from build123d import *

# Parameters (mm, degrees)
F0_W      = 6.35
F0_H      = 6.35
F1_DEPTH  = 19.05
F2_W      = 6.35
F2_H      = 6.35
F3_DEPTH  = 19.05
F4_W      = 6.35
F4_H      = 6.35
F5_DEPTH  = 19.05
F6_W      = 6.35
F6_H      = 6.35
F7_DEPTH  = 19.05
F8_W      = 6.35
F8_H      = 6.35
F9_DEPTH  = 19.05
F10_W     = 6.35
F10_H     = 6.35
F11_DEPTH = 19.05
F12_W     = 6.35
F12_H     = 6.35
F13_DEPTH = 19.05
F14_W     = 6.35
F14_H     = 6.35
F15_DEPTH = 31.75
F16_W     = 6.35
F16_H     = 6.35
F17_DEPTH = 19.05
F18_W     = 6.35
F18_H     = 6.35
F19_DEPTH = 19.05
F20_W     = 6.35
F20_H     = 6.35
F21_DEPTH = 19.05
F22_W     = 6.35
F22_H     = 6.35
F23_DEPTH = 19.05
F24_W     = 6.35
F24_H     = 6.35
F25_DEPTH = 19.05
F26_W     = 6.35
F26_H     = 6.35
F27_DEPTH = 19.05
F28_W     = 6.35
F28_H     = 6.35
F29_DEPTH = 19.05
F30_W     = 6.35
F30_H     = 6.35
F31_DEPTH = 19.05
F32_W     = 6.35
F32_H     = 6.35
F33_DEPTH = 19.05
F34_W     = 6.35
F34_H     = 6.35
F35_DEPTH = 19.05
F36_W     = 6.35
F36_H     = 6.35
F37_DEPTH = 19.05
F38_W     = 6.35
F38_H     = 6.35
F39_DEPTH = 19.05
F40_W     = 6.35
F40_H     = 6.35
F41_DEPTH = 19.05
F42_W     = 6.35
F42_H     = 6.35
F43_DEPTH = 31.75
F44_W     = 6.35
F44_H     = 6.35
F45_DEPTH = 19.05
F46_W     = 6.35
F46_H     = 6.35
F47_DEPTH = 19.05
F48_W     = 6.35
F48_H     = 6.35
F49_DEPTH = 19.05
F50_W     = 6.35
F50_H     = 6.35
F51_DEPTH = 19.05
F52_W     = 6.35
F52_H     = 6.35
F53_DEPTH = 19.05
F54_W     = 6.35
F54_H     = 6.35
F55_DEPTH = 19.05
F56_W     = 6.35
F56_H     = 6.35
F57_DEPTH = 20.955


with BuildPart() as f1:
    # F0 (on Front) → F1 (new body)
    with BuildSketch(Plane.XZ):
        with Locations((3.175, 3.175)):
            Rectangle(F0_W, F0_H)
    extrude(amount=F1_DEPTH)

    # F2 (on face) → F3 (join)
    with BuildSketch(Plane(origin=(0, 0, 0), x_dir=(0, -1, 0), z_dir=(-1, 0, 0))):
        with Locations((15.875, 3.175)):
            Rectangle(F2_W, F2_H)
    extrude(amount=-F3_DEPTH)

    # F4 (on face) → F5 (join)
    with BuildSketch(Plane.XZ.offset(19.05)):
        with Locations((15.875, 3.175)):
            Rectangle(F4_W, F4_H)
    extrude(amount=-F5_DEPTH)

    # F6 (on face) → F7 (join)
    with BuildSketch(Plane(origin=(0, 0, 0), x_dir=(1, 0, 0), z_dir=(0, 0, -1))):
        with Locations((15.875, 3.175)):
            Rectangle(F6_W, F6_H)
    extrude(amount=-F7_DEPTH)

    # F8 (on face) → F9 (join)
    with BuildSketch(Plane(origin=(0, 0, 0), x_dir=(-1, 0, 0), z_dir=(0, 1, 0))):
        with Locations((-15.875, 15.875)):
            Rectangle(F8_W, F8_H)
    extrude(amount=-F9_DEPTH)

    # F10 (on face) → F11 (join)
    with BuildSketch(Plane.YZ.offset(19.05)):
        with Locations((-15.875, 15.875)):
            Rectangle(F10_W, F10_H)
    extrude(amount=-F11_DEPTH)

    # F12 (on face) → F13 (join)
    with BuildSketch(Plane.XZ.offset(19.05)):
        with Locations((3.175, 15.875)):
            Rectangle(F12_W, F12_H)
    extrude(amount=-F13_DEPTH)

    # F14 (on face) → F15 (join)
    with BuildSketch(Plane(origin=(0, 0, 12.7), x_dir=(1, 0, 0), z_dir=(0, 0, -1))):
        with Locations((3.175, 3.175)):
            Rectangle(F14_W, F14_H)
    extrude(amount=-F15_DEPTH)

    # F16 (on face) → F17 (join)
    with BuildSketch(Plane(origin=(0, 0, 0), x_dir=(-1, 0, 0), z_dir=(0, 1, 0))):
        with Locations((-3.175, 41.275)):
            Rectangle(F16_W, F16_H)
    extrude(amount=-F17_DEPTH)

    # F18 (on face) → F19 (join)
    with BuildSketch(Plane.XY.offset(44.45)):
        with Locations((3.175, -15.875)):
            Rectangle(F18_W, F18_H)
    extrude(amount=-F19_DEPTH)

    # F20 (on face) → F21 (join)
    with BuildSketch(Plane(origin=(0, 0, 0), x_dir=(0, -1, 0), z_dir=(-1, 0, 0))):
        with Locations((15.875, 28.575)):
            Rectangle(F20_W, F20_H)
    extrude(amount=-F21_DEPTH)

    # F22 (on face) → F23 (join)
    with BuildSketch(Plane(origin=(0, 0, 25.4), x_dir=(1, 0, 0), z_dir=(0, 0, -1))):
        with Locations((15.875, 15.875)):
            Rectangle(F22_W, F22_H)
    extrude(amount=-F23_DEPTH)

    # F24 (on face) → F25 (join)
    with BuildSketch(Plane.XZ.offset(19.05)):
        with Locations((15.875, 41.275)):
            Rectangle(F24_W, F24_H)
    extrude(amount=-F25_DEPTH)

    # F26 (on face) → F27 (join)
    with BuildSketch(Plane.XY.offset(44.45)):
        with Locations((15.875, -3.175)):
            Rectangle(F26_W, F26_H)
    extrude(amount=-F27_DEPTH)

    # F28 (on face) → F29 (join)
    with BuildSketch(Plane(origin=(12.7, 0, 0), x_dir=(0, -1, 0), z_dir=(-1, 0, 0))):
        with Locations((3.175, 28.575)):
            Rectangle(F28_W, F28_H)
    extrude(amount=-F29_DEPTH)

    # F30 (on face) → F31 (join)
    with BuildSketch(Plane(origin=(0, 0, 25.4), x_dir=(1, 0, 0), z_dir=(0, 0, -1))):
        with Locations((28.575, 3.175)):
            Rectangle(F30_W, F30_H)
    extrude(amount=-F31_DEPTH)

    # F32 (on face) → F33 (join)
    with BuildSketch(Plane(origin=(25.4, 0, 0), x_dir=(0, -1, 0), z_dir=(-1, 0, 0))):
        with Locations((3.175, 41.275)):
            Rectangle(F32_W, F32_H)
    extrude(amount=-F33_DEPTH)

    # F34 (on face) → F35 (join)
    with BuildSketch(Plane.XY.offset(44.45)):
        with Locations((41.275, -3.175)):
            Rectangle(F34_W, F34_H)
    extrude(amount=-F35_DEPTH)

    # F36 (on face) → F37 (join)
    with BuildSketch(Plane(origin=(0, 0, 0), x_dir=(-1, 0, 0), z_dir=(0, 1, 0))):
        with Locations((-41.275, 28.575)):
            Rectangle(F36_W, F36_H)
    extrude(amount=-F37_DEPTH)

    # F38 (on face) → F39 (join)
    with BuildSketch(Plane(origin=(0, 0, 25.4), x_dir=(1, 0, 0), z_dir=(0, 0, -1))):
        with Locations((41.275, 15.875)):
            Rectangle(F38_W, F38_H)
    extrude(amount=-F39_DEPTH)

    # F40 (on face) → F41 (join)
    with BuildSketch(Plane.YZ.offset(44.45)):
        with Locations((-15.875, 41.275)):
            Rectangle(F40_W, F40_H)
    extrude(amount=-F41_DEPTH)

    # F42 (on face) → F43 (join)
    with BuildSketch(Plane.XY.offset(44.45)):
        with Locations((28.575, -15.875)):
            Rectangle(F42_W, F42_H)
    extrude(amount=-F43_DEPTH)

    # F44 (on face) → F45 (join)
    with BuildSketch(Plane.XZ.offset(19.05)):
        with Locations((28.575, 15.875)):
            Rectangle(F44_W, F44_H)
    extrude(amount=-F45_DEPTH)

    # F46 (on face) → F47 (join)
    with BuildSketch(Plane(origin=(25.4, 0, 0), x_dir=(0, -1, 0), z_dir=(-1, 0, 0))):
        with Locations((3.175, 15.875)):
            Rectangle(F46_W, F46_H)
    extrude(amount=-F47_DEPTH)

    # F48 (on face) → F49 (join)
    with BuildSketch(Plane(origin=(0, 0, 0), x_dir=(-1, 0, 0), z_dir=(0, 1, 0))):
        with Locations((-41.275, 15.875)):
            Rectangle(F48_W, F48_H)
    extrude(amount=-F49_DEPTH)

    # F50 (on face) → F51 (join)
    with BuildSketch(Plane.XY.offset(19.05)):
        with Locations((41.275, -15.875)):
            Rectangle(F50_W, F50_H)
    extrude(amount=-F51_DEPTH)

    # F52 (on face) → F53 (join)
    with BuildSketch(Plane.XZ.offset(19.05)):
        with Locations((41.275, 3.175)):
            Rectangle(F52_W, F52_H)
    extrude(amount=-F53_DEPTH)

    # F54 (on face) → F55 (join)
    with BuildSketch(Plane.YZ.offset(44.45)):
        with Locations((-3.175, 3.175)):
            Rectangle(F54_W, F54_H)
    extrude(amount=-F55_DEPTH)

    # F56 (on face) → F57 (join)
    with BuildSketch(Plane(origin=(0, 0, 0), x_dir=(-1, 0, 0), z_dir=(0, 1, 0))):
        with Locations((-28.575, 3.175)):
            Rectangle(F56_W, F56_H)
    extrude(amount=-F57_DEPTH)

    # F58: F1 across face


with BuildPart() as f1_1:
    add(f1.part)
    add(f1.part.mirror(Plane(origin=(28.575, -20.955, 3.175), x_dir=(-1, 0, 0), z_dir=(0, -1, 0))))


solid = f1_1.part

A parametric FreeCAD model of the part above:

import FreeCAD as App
import Part
import Sketcher

V = App.Vector
Q = App.Units.Quantity


def add_polygon(sketch, points):
    """Adds a closed chain of lines whose ends are joined by coincident constraints."""
    first, n = sketch.GeometryCount, len(points)
    for a, b in zip(points, points[1:] + points[:1]):
        sketch.addGeometry(Part.LineSegment(App.Vector(*a, 0), App.Vector(*b, 0)), False)
    for i in range(n):
        sketch.addConstraint(Sketcher.Constraint("Coincident", first + i, 2, first + (i + 1) % n, 1))

doc = App.newDocument("Part")
body = doc.addObject("PartDesign::Body", "Body")

sketch1 = body.newObject("Sketcher::SketchObject", "Sketch")
sketch1.AttachmentSupport = (doc.getObject("XZ_Plane"), [""])
sketch1.MapMode = "FlatFace"
add_polygon(sketch1, [(0, 6), (0, 0), (6, 0), (6, 6)])
sketch1.addConstraint(Sketcher.Constraint("Vertical", 0))
sketch1.addConstraint(Sketcher.Constraint("Horizontal", 1))
sketch1.addConstraint(Sketcher.Constraint("Vertical", 2))
sketch1.addConstraint(Sketcher.Constraint("Horizontal", 3))
sketch1.addConstraint(Sketcher.Constraint("Coincident", 0, 2, -1, 1))
sketch1.addConstraint(Sketcher.Constraint("Equal", 3, 0))
sketch1.addConstraint(Sketcher.Constraint("DistanceX", 1, 1, 1, 2, Q("0.25 in")))
pad1 = body.newObject("PartDesign::Pad", "Pad")
pad1.Profile = sketch1
pad1.Length = Q("0.75 in")

sketch2 = body.newObject("Sketcher::SketchObject", "Sketch001")
sketch2.AttachmentSupport = (doc.getObject("YZ_Plane"), [""])
sketch2.MapMode = "FlatFace"
add_polygon(sketch2, [(-13, 6), (-13, 0), (-19, 0), (-19, 6)])
sketch2.addConstraint(Sketcher.Constraint("Vertical", 0))
sketch2.addConstraint(Sketcher.Constraint("Horizontal", 1))
sketch2.addConstraint(Sketcher.Constraint("Vertical", 2))
sketch2.addConstraint(Sketcher.Constraint("Horizontal", 3))
sketch2.addConstraint(Sketcher.Constraint("PointOnObject", 0, 2, -1))
sketch2.addConstraint(Sketcher.Constraint("Equal", 3, 0))
sketch2.addConstraint(Sketcher.Constraint("DistanceX", 1, 2, 1, 1, Q("0.25 in")))
sketch2.addConstraint(Sketcher.Constraint("DistanceX", 0, 2, -1, 1, Q("0.5 in")))
pad2 = body.newObject("PartDesign::Pad", "Pad001")
pad2.Profile = sketch2
pad2.Length = Q("0.75 in")

sketch3 = body.newObject("Sketcher::SketchObject", "Sketch002")
sketch3.AttachmentSupport = (doc.getObject("XZ_Plane"), [""])
sketch3.MapMode = "FlatFace"
sketch3.AttachmentOffset = App.Placement(V(0, 0, 0.75 * 25.4), App.Rotation())
add_polygon(sketch3, [(13, 6), (13, 0), (19, 0), (19, 6)])
sketch3.addConstraint(Sketcher.Constraint("Vertical", 0))
sketch3.addConstraint(Sketcher.Constraint("Horizontal", 1))
sketch3.addConstraint(Sketcher.Constraint("Vertical", 2))
sketch3.addConstraint(Sketcher.Constraint("Horizontal", 3))
sketch3.addConstraint(Sketcher.Constraint("PointOnObject", 0, 2, -1))
sketch3.addConstraint(Sketcher.Constraint("Equal", 3, 0))
sketch3.addConstraint(Sketcher.Constraint("DistanceX", 1, 1, 1, 2, Q("0.25 in")))
sketch3.addConstraint(Sketcher.Constraint("DistanceX", -1, 1, 0, 2, Q("0.5 in")))
pad3 = body.newObject("PartDesign::Pad", "Pad002")
pad3.Profile = sketch3
pad3.Length = Q("0.75 in")
pad3.Reversed = True

sketch4 = body.newObject("Sketcher::SketchObject", "Sketch003")
sketch4.AttachmentSupport = (doc.getObject("XY_Plane"), [""])
sketch4.MapMode = "FlatFace"
add_polygon(sketch4, [(13, -6), (13, 0), (19, 0), (19, -6)])
sketch4.addConstraint(Sketcher.Constraint("Vertical", 0))
sketch4.addConstraint(Sketcher.Constraint("Horizontal", 1))
sketch4.addConstraint(Sketcher.Constraint("Vertical", 2))
sketch4.addConstraint(Sketcher.Constraint("Horizontal", 3))
sketch4.addConstraint(Sketcher.Constraint("PointOnObject", 0, 2, -1))
sketch4.addConstraint(Sketcher.Constraint("Equal", 3, 0))
sketch4.addConstraint(Sketcher.Constraint("DistanceX", 1, 1, 1, 2, Q("0.25 in")))
sketch4.addConstraint(Sketcher.Constraint("DistanceX", -1, 1, 0, 2, Q("0.5 in")))
pad4 = body.newObject("PartDesign::Pad", "Pad003")
pad4.Profile = sketch4
pad4.Length = Q("0.75 in")

sketch5 = body.newObject("Sketcher::SketchObject", "Sketch004")
sketch5.AttachmentSupport = (doc.getObject("XZ_Plane"), [""])
sketch5.MapMode = "FlatFace"
add_polygon(sketch5, [(19, 19), (19, 13), (13, 13), (13, 19)])
sketch5.addConstraint(Sketcher.Constraint("Vertical", 0))
sketch5.addConstraint(Sketcher.Constraint("Horizontal", 1))
sketch5.addConstraint(Sketcher.Constraint("Vertical", 2))
sketch5.addConstraint(Sketcher.Constraint("Horizontal", 3))
sketch5.addConstraint(Sketcher.Constraint("Equal", 3, 0))
sketch5.addConstraint(Sketcher.Constraint("DistanceX", 1, 2, 1, 1, Q("0.25 in")))
sketch5.addConstraint(Sketcher.Constraint("DistanceY", -1, 1, 0, 2, Q("0.5 in")))
sketch5.addConstraint(Sketcher.Constraint("DistanceX", -1, 1, 1, 2, Q("0.5 in")))
pad5 = body.newObject("PartDesign::Pad", "Pad004")
pad5.Profile = sketch5
pad5.Length = Q("0.75 in")

sketch6 = body.newObject("Sketcher::SketchObject", "Sketch005")
sketch6.AttachmentSupport = (doc.getObject("YZ_Plane"), [""])
sketch6.MapMode = "FlatFace"
sketch6.AttachmentOffset = App.Placement(V(0, 0, 0.75 * 25.4), App.Rotation())
add_polygon(sketch6, [(-19, 19), (-19, 13), (-13, 13), (-13, 19)])
sketch6.addConstraint(Sketcher.Constraint("Vertical", 0))
sketch6.addConstraint(Sketcher.Constraint("Horizontal", 1))
sketch6.addConstraint(Sketcher.Constraint("Vertical", 2))
sketch6.addConstraint(Sketcher.Constraint("Horizontal", 3))
sketch6.addConstraint(Sketcher.Constraint("Equal", 3, 0))
sketch6.addConstraint(Sketcher.Constraint("DistanceX", 1, 1, 1, 2, Q("0.25 in")))
sketch6.addConstraint(Sketcher.Constraint("DistanceY", -1, 1, 0, 2, Q("0.5 in")))
sketch6.addConstraint(Sketcher.Constraint("DistanceX", 1, 2, -1, 1, Q("0.5 in")))
pad6 = body.newObject("PartDesign::Pad", "Pad005")
pad6.Profile = sketch6
pad6.Length = Q("0.75 in")
pad6.Reversed = True

sketch7 = body.newObject("Sketcher::SketchObject", "Sketch006")
sketch7.AttachmentSupport = (doc.getObject("XZ_Plane"), [""])
sketch7.MapMode = "FlatFace"
sketch7.AttachmentOffset = App.Placement(V(0, 0, 0.75 * 25.4), App.Rotation())
add_polygon(sketch7, [(0, 19), (0, 13), (6, 13), (6, 19)])
sketch7.addConstraint(Sketcher.Constraint("Vertical", 0))
sketch7.addConstraint(Sketcher.Constraint("Horizontal", 1))
sketch7.addConstraint(Sketcher.Constraint("Vertical", 2))
sketch7.addConstraint(Sketcher.Constraint("Horizontal", 3))
sketch7.addConstraint(Sketcher.Constraint("PointOnObject", 0, 2, -2))
sketch7.addConstraint(Sketcher.Constraint("Equal", 3, 0))
sketch7.addConstraint(Sketcher.Constraint("DistanceX", 1, 1, 1, 2, Q("0.25 in")))
sketch7.addConstraint(Sketcher.Constraint("DistanceY", -1, 1, 0, 2, Q("0.5 in")))
pad7 = body.newObject("PartDesign::Pad", "Pad006")
pad7.Profile = sketch7
pad7.Length = Q("0.75 in")
pad7.Reversed = True

sketch8 = body.newObject("Sketcher::SketchObject", "Sketch007")
sketch8.AttachmentSupport = (doc.getObject("XY_Plane"), [""])
sketch8.MapMode = "FlatFace"
sketch8.AttachmentOffset = App.Placement(V(0, 0, 0.5 * 25.4), App.Rotation())
add_polygon(sketch8, [(0, -6), (0, 0), (6, 0), (6, -6)])
sketch8.addConstraint(Sketcher.Constraint("Vertical", 0))
sketch8.addConstraint(Sketcher.Constraint("Horizontal", 1))
sketch8.addConstraint(Sketcher.Constraint("Vertical", 2))
sketch8.addConstraint(Sketcher.Constraint("Horizontal", 3))
sketch8.addConstraint(Sketcher.Constraint("Coincident", 0, 2, -1, 1))
sketch8.addConstraint(Sketcher.Constraint("Equal", 3, 0))
sketch8.addConstraint(Sketcher.Constraint("DistanceX", 1, 1, 1, 2, Q("0.25 in")))
pad8 = body.newObject("PartDesign::Pad", "Pad007")
pad8.Profile = sketch8
pad8.Length = Q("1.25 in")

sketch9 = body.newObject("Sketcher::SketchObject", "Sketch008")
sketch9.AttachmentSupport = (doc.getObject("XZ_Plane"), [""])
sketch9.MapMode = "FlatFace"
add_polygon(sketch9, [(6, 44), (6, 38), (0, 38), (0, 44)])
sketch9.addConstraint(Sketcher.Constraint("Vertical", 0))
sketch9.addConstraint(Sketcher.Constraint("Horizontal", 1))
sketch9.addConstraint(Sketcher.Constraint("Vertical", 2))
sketch9.addConstraint(Sketcher.Constraint("Horizontal", 3))
sketch9.addConstraint(Sketcher.Constraint("PointOnObject", 1, 2, -2))
sketch9.addConstraint(Sketcher.Constraint("Equal", 3, 0))
sketch9.addConstraint(Sketcher.Constraint("DistanceX", 1, 2, 1, 1, Q("0.25 in")))
sketch9.addConstraint(Sketcher.Constraint("DistanceY", -1, 1, 0, 2, Q("1.5 in")))
pad9 = body.newObject("PartDesign::Pad", "Pad008")
pad9.Profile = sketch9
pad9.Length = Q("0.75 in")

sketch10 = body.newObject("Sketcher::SketchObject", "Sketch009")
sketch10.AttachmentSupport = (doc.getObject("XY_Plane"), [""])
sketch10.MapMode = "FlatFace"
sketch10.AttachmentOffset = App.Placement(V(0, 0, 1.75 * 25.4), App.Rotation())
add_polygon(sketch10, [(0, -13), (0, -19), (6, -19), (6, -13)])
sketch10.addConstraint(Sketcher.Constraint("Vertical", 0))
sketch10.addConstraint(Sketcher.Constraint("Horizontal", 1))
sketch10.addConstraint(Sketcher.Constraint("Vertical", 2))
sketch10.addConstraint(Sketcher.Constraint("Horizontal", 3))
sketch10.addConstraint(Sketcher.Constraint("PointOnObject", 0, 2, -2))
sketch10.addConstraint(Sketcher.Constraint("Equal", 3, 0))
sketch10.addConstraint(Sketcher.Constraint("DistanceX", 1, 1, 1, 2, Q("0.25 in")))
sketch10.addConstraint(Sketcher.Constraint("DistanceY", 2, 2, -1, 1, Q("0.5 in")))
pad10 = body.newObject("PartDesign::Pad", "Pad009")
pad10.Profile = sketch10
pad10.Length = Q("0.75 in")
pad10.Reversed = True

sketch11 = body.newObject("Sketcher::SketchObject", "Sketch010")
sketch11.AttachmentSupport = (doc.getObject("YZ_Plane"), [""])
sketch11.MapMode = "FlatFace"
add_polygon(sketch11, [(-13, 32), (-13, 25), (-19, 25), (-19, 32)])
sketch11.addConstraint(Sketcher.Constraint("Vertical", 0))
sketch11.addConstraint(Sketcher.Constraint("Horizontal", 1))
sketch11.addConstraint(Sketcher.Constraint("Vertical", 2))
sketch11.addConstraint(Sketcher.Constraint("Horizontal", 3))
sketch11.addConstraint(Sketcher.Constraint("Equal", 3, 0))
sketch11.addConstraint(Sketcher.Constraint("DistanceY", -1, 1, 0, 2, Q("1 in")))
sketch11.addConstraint(Sketcher.Constraint("DistanceX", 1, 2, 1, 1, Q("0.25 in")))
sketch11.addConstraint(Sketcher.Constraint("DistanceX", 0, 2, -1, 1, Q("0.5 in")))
pad11 = body.newObject("PartDesign::Pad", "Pad010")
pad11.Profile = sketch11
pad11.Length = Q("0.75 in")

sketch12 = body.newObject("Sketcher::SketchObject", "Sketch011")
sketch12.AttachmentSupport = (doc.getObject("XY_Plane"), [""])
sketch12.MapMode = "FlatFace"
sketch12.AttachmentOffset = App.Placement(V(0, 0, 1 * 25.4), App.Rotation())
add_polygon(sketch12, [(13, -19), (13, -13), (19, -13), (19, -19)])
sketch12.addConstraint(Sketcher.Constraint("Vertical", 0))
sketch12.addConstraint(Sketcher.Constraint("Horizontal", 1))
sketch12.addConstraint(Sketcher.Constraint("Vertical", 2))
sketch12.addConstraint(Sketcher.Constraint("Horizontal", 3))
sketch12.addConstraint(Sketcher.Constraint("Equal", 3, 0))
sketch12.addConstraint(Sketcher.Constraint("DistanceX", 1, 1, 1, 2, Q("0.25 in")))
sketch12.addConstraint(Sketcher.Constraint("DistanceX", -1, 1, 0, 2, Q("0.5 in")))
sketch12.addConstraint(Sketcher.Constraint("DistanceY", 0, 2, -1, 1, Q("0.5 in")))
pad12 = body.newObject("PartDesign::Pad", "Pad011")
pad12.Profile = sketch12
pad12.Length = Q("0.75 in")

sketch13 = body.newObject("Sketcher::SketchObject", "Sketch012")
sketch13.AttachmentSupport = (doc.getObject("XZ_Plane"), [""])
sketch13.MapMode = "FlatFace"
sketch13.AttachmentOffset = App.Placement(V(0, 0, 0.75 * 25.4), App.Rotation())
add_polygon(sketch13, [(13, 44), (13, 38), (19, 38), (19, 44)])
sketch13.addConstraint(Sketcher.Constraint("Vertical", 0))
sketch13.addConstraint(Sketcher.Constraint("Horizontal", 1))
sketch13.addConstraint(Sketcher.Constraint("Vertical", 2))
sketch13.addConstraint(Sketcher.Constraint("Horizontal", 3))
sketch13.addConstraint(Sketcher.Constraint("Equal", 3, 0))
sketch13.addConstraint(Sketcher.Constraint("DistanceX", 1, 1, 1, 2, Q("0.25 in")))
sketch13.addConstraint(Sketcher.Constraint("DistanceX", -1, 1, 0, 2, Q("0.5 in")))
sketch13.addConstraint(Sketcher.Constraint("DistanceY", -1, 1, 0, 2, Q("1.5 in")))
pad13 = body.newObject("PartDesign::Pad", "Pad012")
pad13.Profile = sketch13
pad13.Length = Q("0.75 in")
pad13.Reversed = True

sketch14 = body.newObject("Sketcher::SketchObject", "Sketch013")
sketch14.AttachmentSupport = (doc.getObject("XY_Plane"), [""])
sketch14.MapMode = "FlatFace"
sketch14.AttachmentOffset = App.Placement(V(0, 0, 1.75 * 25.4), App.Rotation())
add_polygon(sketch14, [(13, 0), (13, -6), (19, -6), (19, 0)])
sketch14.addConstraint(Sketcher.Constraint("Vertical", 0))
sketch14.addConstraint(Sketcher.Constraint("Horizontal", 1))
sketch14.addConstraint(Sketcher.Constraint("Vertical", 2))
sketch14.addConstraint(Sketcher.Constraint("Horizontal", 3))
sketch14.addConstraint(Sketcher.Constraint("PointOnObject", 2, 2, -1))
sketch14.addConstraint(Sketcher.Constraint("Equal", 3, 0))
sketch14.addConstraint(Sketcher.Constraint("DistanceX", 1, 1, 1, 2, Q("0.25 in")))
sketch14.addConstraint(Sketcher.Constraint("DistanceX", -1, 1, 0, 2, Q("0.5 in")))
pad14 = body.newObject("PartDesign::Pad", "Pad013")
pad14.Profile = sketch14
pad14.Length = Q("0.75 in")
pad14.Reversed = True

sketch15 = body.newObject("Sketcher::SketchObject", "Sketch014")
sketch15.AttachmentSupport = (doc.getObject("YZ_Plane"), [""])
sketch15.MapMode = "FlatFace"
sketch15.AttachmentOffset = App.Placement(V(0, 0, 0.5 * 25.4), App.Rotation())
add_polygon(sketch15, [(0, 32), (0, 25), (-6, 25), (-6, 32)])
sketch15.addConstraint(Sketcher.Constraint("Vertical", 0))
sketch15.addConstraint(Sketcher.Constraint("Horizontal", 1))
sketch15.addConstraint(Sketcher.Constraint("Vertical", 2))
sketch15.addConstraint(Sketcher.Constraint("Horizontal", 3))
sketch15.addConstraint(Sketcher.Constraint("PointOnObject", 0, 2, -2))
sketch15.addConstraint(Sketcher.Constraint("Equal", 3, 0))
sketch15.addConstraint(Sketcher.Constraint("DistanceY", -1, 1, 0, 2, Q("1 in")))
sketch15.addConstraint(Sketcher.Constraint("DistanceX", 1, 2, 1, 1, Q("0.25 in")))
pad15 = body.newObject("PartDesign::Pad", "Pad014")
pad15.Profile = sketch15
pad15.Length = Q("0.75 in")

sketch16 = body.newObject("Sketcher::SketchObject", "Sketch015")
sketch16.AttachmentSupport = (doc.getObject("XY_Plane"), [""])
sketch16.MapMode = "FlatFace"
sketch16.AttachmentOffset = App.Placement(V(0, 0, 1 * 25.4), App.Rotation())
add_polygon(sketch16, [(25, -6), (25, 0), (32, 0), (32, -6)])
sketch16.addConstraint(Sketcher.Constraint("Vertical", 0))
sketch16.addConstraint(Sketcher.Constraint("Horizontal", 1))
sketch16.addConstraint(Sketcher.Constraint("Vertical", 2))
sketch16.addConstraint(Sketcher.Constraint("Horizontal", 3))
sketch16.addConstraint(Sketcher.Constraint("PointOnObject", 0, 2, -1))
sketch16.addConstraint(Sketcher.Constraint("Equal", 3, 0))
sketch16.addConstraint(Sketcher.Constraint("DistanceX", -1, 1, 0, 2, Q("1 in")))
sketch16.addConstraint(Sketcher.Constraint("DistanceX", 1, 1, 1, 2, Q("0.25 in")))
pad16 = body.newObject("PartDesign::Pad", "Pad015")
pad16.Profile = sketch16
pad16.Length = Q("0.75 in")

sketch17 = body.newObject("Sketcher::SketchObject", "Sketch016")
sketch17.AttachmentSupport = (doc.getObject("YZ_Plane"), [""])
sketch17.MapMode = "FlatFace"
sketch17.AttachmentOffset = App.Placement(V(0, 0, 1 * 25.4), App.Rotation())
add_polygon(sketch17, [(0, 44), (0, 38), (-6, 38), (-6, 44)])
sketch17.addConstraint(Sketcher.Constraint("Vertical", 0))
sketch17.addConstraint(Sketcher.Constraint("Horizontal", 1))
sketch17.addConstraint(Sketcher.Constraint("Vertical", 2))
sketch17.addConstraint(Sketcher.Constraint("Horizontal", 3))
sketch17.addConstraint(Sketcher.Constraint("PointOnObject", 0, 2, -2))
sketch17.addConstraint(Sketcher.Constraint("Equal", 3, 0))
sketch17.addConstraint(Sketcher.Constraint("DistanceX", 1, 2, 1, 1, Q("0.25 in")))
sketch17.addConstraint(Sketcher.Constraint("DistanceY", -1, 1, 0, 2, Q("1.5 in")))
pad17 = body.newObject("PartDesign::Pad", "Pad016")
pad17.Profile = sketch17
pad17.Length = Q("0.75 in")

sketch18 = body.newObject("Sketcher::SketchObject", "Sketch017")
sketch18.AttachmentSupport = (doc.getObject("XY_Plane"), [""])
sketch18.MapMode = "FlatFace"
sketch18.AttachmentOffset = App.Placement(V(0, 0, 1.75 * 25.4), App.Rotation())
add_polygon(sketch18, [(38, 0), (38, -6), (44, -6), (44, 0)])
sketch18.addConstraint(Sketcher.Constraint("Vertical", 0))
sketch18.addConstraint(Sketcher.Constraint("Horizontal", 1))
sketch18.addConstraint(Sketcher.Constraint("Vertical", 2))
sketch18.addConstraint(Sketcher.Constraint("Horizontal", 3))
sketch18.addConstraint(Sketcher.Constraint("PointOnObject", 2, 2, -1))
sketch18.addConstraint(Sketcher.Constraint("Equal", 3, 0))
sketch18.addConstraint(Sketcher.Constraint("DistanceX", 1, 1, 1, 2, Q("0.25 in")))
sketch18.addConstraint(Sketcher.Constraint("DistanceX", -1, 1, 0, 2, Q("1.5 in")))
pad18 = body.newObject("PartDesign::Pad", "Pad017")
pad18.Profile = sketch18
pad18.Length = Q("0.75 in")
pad18.Reversed = True

sketch19 = body.newObject("Sketcher::SketchObject", "Sketch018")
sketch19.AttachmentSupport = (doc.getObject("XZ_Plane"), [""])
sketch19.MapMode = "FlatFace"
add_polygon(sketch19, [(44, 32), (44, 25), (38, 25), (38, 32)])
sketch19.addConstraint(Sketcher.Constraint("Vertical", 0))
sketch19.addConstraint(Sketcher.Constraint("Horizontal", 1))
sketch19.addConstraint(Sketcher.Constraint("Vertical", 2))
sketch19.addConstraint(Sketcher.Constraint("Horizontal", 3))
sketch19.addConstraint(Sketcher.Constraint("Equal", 3, 0))
sketch19.addConstraint(Sketcher.Constraint("DistanceY", -1, 1, 0, 2, Q("1 in")))
sketch19.addConstraint(Sketcher.Constraint("DistanceX", 1, 2, 1, 1, Q("0.25 in")))
sketch19.addConstraint(Sketcher.Constraint("DistanceX", -1, 1, 1, 2, Q("1.5 in")))
pad19 = body.newObject("PartDesign::Pad", "Pad018")
pad19.Profile = sketch19
pad19.Length = Q("0.75 in")

sketch20 = body.newObject("Sketcher::SketchObject", "Sketch019")
sketch20.AttachmentSupport = (doc.getObject("XY_Plane"), [""])
sketch20.MapMode = "FlatFace"
sketch20.AttachmentOffset = App.Placement(V(0, 0, 1 * 25.4), App.Rotation())
add_polygon(sketch20, [(38, -19), (38, -13), (44, -13), (44, -19)])
sketch20.addConstraint(Sketcher.Constraint("Vertical", 0))
sketch20.addConstraint(Sketcher.Constraint("Horizontal", 1))
sketch20.addConstraint(Sketcher.Constraint("Vertical", 2))
sketch20.addConstraint(Sketcher.Constraint("Horizontal", 3))
sketch20.addConstraint(Sketcher.Constraint("Equal", 3, 0))
sketch20.addConstraint(Sketcher.Constraint("DistanceX", 1, 1, 1, 2, Q("0.25 in")))
sketch20.addConstraint(Sketcher.Constraint("DistanceX", -1, 1, 0, 2, Q("1.5 in")))
sketch20.addConstraint(Sketcher.Constraint("DistanceY", 0, 2, -1, 1, Q("0.5 in")))
pad20 = body.newObject("PartDesign::Pad", "Pad019")
pad20.Profile = sketch20
pad20.Length = Q("0.75 in")

sketch21 = body.newObject("Sketcher::SketchObject", "Sketch020")
sketch21.AttachmentSupport = (doc.getObject("YZ_Plane"), [""])
sketch21.MapMode = "FlatFace"
sketch21.AttachmentOffset = App.Placement(V(0, 0, 1.75 * 25.4), App.Rotation())
add_polygon(sketch21, [(-19, 44), (-19, 38), (-13, 38), (-13, 44)])
sketch21.addConstraint(Sketcher.Constraint("Vertical", 0))
sketch21.addConstraint(Sketcher.Constraint("Horizontal", 1))
sketch21.addConstraint(Sketcher.Constraint("Vertical", 2))
sketch21.addConstraint(Sketcher.Constraint("Horizontal", 3))
sketch21.addConstraint(Sketcher.Constraint("Equal", 3, 0))
sketch21.addConstraint(Sketcher.Constraint("DistanceX", 1, 1, 1, 2, Q("0.25 in")))
sketch21.addConstraint(Sketcher.Constraint("DistanceY", -1, 1, 0, 2, Q("1.5 in")))
sketch21.addConstraint(Sketcher.Constraint("DistanceX", 1, 2, -1, 1, Q("0.5 in")))
pad21 = body.newObject("PartDesign::Pad", "Pad020")
pad21.Profile = sketch21
pad21.Length = Q("0.75 in")
pad21.Reversed = True

sketch22 = body.newObject("Sketcher::SketchObject", "Sketch021")
sketch22.AttachmentSupport = (doc.getObject("XY_Plane"), [""])
sketch22.MapMode = "FlatFace"
sketch22.AttachmentOffset = App.Placement(V(0, 0, 1.75 * 25.4), App.Rotation())
add_polygon(sketch22, [(25, -13), (25, -19), (32, -19), (32, -13)])
sketch22.addConstraint(Sketcher.Constraint("Vertical", 0))
sketch22.addConstraint(Sketcher.Constraint("Horizontal", 1))
sketch22.addConstraint(Sketcher.Constraint("Vertical", 2))
sketch22.addConstraint(Sketcher.Constraint("Horizontal", 3))
sketch22.addConstraint(Sketcher.Constraint("Equal", 3, 0))
sketch22.addConstraint(Sketcher.Constraint("DistanceX", -1, 1, 0, 2, Q("1 in")))
sketch22.addConstraint(Sketcher.Constraint("DistanceX", 1, 1, 1, 2, Q("0.25 in")))
sketch22.addConstraint(Sketcher.Constraint("DistanceY", 2, 2, -1, 1, Q("0.5 in")))
pad22 = body.newObject("PartDesign::Pad", "Pad021")
pad22.Profile = sketch22
pad22.Length = Q("1.25 in")
pad22.Reversed = True

sketch23 = body.newObject("Sketcher::SketchObject", "Sketch022")
sketch23.AttachmentSupport = (doc.getObject("XZ_Plane"), [""])
sketch23.MapMode = "FlatFace"
sketch23.AttachmentOffset = App.Placement(V(0, 0, 0.75 * 25.4), App.Rotation())
add_polygon(sketch23, [(25, 19), (25, 13), (32, 13), (32, 19)])
sketch23.addConstraint(Sketcher.Constraint("Vertical", 0))
sketch23.addConstraint(Sketcher.Constraint("Horizontal", 1))
sketch23.addConstraint(Sketcher.Constraint("Vertical", 2))
sketch23.addConstraint(Sketcher.Constraint("Horizontal", 3))
sketch23.addConstraint(Sketcher.Constraint("Equal", 3, 0))
sketch23.addConstraint(Sketcher.Constraint("DistanceX", -1, 1, 0, 2, Q("1 in")))
sketch23.addConstraint(Sketcher.Constraint("DistanceX", 1, 1, 1, 2, Q("0.25 in")))
sketch23.addConstraint(Sketcher.Constraint("DistanceY", -1, 1, 0, 2, Q("0.5 in")))
pad23 = body.newObject("PartDesign::Pad", "Pad022")
pad23.Profile = sketch23
pad23.Length = Q("0.75 in")
pad23.Reversed = True

sketch24 = body.newObject("Sketcher::SketchObject", "Sketch023")
sketch24.AttachmentSupport = (doc.getObject("YZ_Plane"), [""])
sketch24.MapMode = "FlatFace"
sketch24.AttachmentOffset = App.Placement(V(0, 0, 1 * 25.4), App.Rotation())
add_polygon(sketch24, [(0, 19), (0, 13), (-6, 13), (-6, 19)])
sketch24.addConstraint(Sketcher.Constraint("Vertical", 0))
sketch24.addConstraint(Sketcher.Constraint("Horizontal", 1))
sketch24.addConstraint(Sketcher.Constraint("Vertical", 2))
sketch24.addConstraint(Sketcher.Constraint("Horizontal", 3))
sketch24.addConstraint(Sketcher.Constraint("PointOnObject", 0, 2, -2))
sketch24.addConstraint(Sketcher.Constraint("Equal", 3, 0))
sketch24.addConstraint(Sketcher.Constraint("DistanceX", 1, 2, 1, 1, Q("0.25 in")))
sketch24.addConstraint(Sketcher.Constraint("DistanceY", -1, 1, 0, 2, Q("0.5 in")))
pad24 = body.newObject("PartDesign::Pad", "Pad023")
pad24.Profile = sketch24
pad24.Length = Q("0.75 in")

sketch25 = body.newObject("Sketcher::SketchObject", "Sketch024")
sketch25.AttachmentSupport = (doc.getObject("XZ_Plane"), [""])
sketch25.MapMode = "FlatFace"
add_polygon(sketch25, [(44, 19), (44, 13), (38, 13), (38, 19)])
sketch25.addConstraint(Sketcher.Constraint("Vertical", 0))
sketch25.addConstraint(Sketcher.Constraint("Horizontal", 1))
sketch25.addConstraint(Sketcher.Constraint("Vertical", 2))
sketch25.addConstraint(Sketcher.Constraint("Horizontal", 3))
sketch25.addConstraint(Sketcher.Constraint("Equal", 3, 0))
sketch25.addConstraint(Sketcher.Constraint("DistanceX", 1, 2, 1, 1, Q("0.25 in")))
sketch25.addConstraint(Sketcher.Constraint("DistanceY", -1, 1, 0, 2, Q("0.5 in")))
sketch25.addConstraint(Sketcher.Constraint("DistanceX", -1, 1, 1, 2, Q("1.5 in")))
pad25 = body.newObject("PartDesign::Pad", "Pad024")
pad25.Profile = sketch25
pad25.Length = Q("0.75 in")

sketch26 = body.newObject("Sketcher::SketchObject", "Sketch025")
sketch26.AttachmentSupport = (doc.getObject("XY_Plane"), [""])
sketch26.MapMode = "FlatFace"
sketch26.AttachmentOffset = App.Placement(V(0, 0, 0.75 * 25.4), App.Rotation())
add_polygon(sketch26, [(38, -13), (38, -19), (44, -19), (44, -13)])
sketch26.addConstraint(Sketcher.Constraint("Vertical", 0))
sketch26.addConstraint(Sketcher.Constraint("Horizontal", 1))
sketch26.addConstraint(Sketcher.Constraint("Vertical", 2))
sketch26.addConstraint(Sketcher.Constraint("Horizontal", 3))
sketch26.addConstraint(Sketcher.Constraint("Equal", 3, 0))
sketch26.addConstraint(Sketcher.Constraint("DistanceX", 1, 1, 1, 2, Q("0.25 in")))
sketch26.addConstraint(Sketcher.Constraint("DistanceX", -1, 1, 0, 2, Q("1.5 in")))
sketch26.addConstraint(Sketcher.Constraint("DistanceY", 2, 2, -1, 1, Q("0.5 in")))
pad26 = body.newObject("PartDesign::Pad", "Pad025")
pad26.Profile = sketch26
pad26.Length = Q("0.75 in")
pad26.Reversed = True

sketch27 = body.newObject("Sketcher::SketchObject", "Sketch026")
sketch27.AttachmentSupport = (doc.getObject("XZ_Plane"), [""])
sketch27.MapMode = "FlatFace"
sketch27.AttachmentOffset = App.Placement(V(0, 0, 0.75 * 25.4), App.Rotation())
add_polygon(sketch27, [(38, 6), (38, 0), (44, 0), (44, 6)])
sketch27.addConstraint(Sketcher.Constraint("Vertical", 0))
sketch27.addConstraint(Sketcher.Constraint("Horizontal", 1))
sketch27.addConstraint(Sketcher.Constraint("Vertical", 2))
sketch27.addConstraint(Sketcher.Constraint("Horizontal", 3))
sketch27.addConstraint(Sketcher.Constraint("PointOnObject", 0, 2, -1))
sketch27.addConstraint(Sketcher.Constraint("Equal", 3, 0))
sketch27.addConstraint(Sketcher.Constraint("DistanceX", 1, 1, 1, 2, Q("0.25 in")))
sketch27.addConstraint(Sketcher.Constraint("DistanceX", -1, 1, 0, 2, Q("1.5 in")))
pad27 = body.newObject("PartDesign::Pad", "Pad026")
pad27.Profile = sketch27
pad27.Length = Q("0.75 in")
pad27.Reversed = True

sketch28 = body.newObject("Sketcher::SketchObject", "Sketch027")
sketch28.AttachmentSupport = (doc.getObject("YZ_Plane"), [""])
sketch28.MapMode = "FlatFace"
sketch28.AttachmentOffset = App.Placement(V(0, 0, 1.75 * 25.4), App.Rotation())
add_polygon(sketch28, [(-6, 6), (-6, 0), (0, 0), (0, 6)])
sketch28.addConstraint(Sketcher.Constraint("Vertical", 0))
sketch28.addConstraint(Sketcher.Constraint("Horizontal", 1))
sketch28.addConstraint(Sketcher.Constraint("Vertical", 2))
sketch28.addConstraint(Sketcher.Constraint("Horizontal", 3))
sketch28.addConstraint(Sketcher.Constraint("Coincident", 1, 2, -1, 1))
sketch28.addConstraint(Sketcher.Constraint("Equal", 3, 0))
sketch28.addConstraint(Sketcher.Constraint("DistanceX", 1, 1, 1, 2, Q("0.25 in")))
pad28 = body.newObject("PartDesign::Pad", "Pad027")
pad28.Profile = sketch28
pad28.Length = Q("0.75 in")
pad28.Reversed = True

sketch29 = body.newObject("Sketcher::SketchObject", "Sketch028")
sketch29.AttachmentSupport = (doc.getObject("XZ_Plane"), [""])
sketch29.MapMode = "FlatFace"
add_polygon(sketch29, [(32, 6), (32, 0), (25, 0), (25, 6)])
sketch29.addConstraint(Sketcher.Constraint("Vertical", 0))
sketch29.addConstraint(Sketcher.Constraint("Horizontal", 1))
sketch29.addConstraint(Sketcher.Constraint("Vertical", 2))
sketch29.addConstraint(Sketcher.Constraint("Horizontal", 3))
sketch29.addConstraint(Sketcher.Constraint("PointOnObject", 0, 2, -1))
sketch29.addConstraint(Sketcher.Constraint("Equal", 3, 0))
sketch29.addConstraint(Sketcher.Constraint("DistanceX", -1, 1, 1, 2, Q("1 in")))
sketch29.addConstraint(Sketcher.Constraint("DistanceX", 1, 2, 1, 1, Q("0.25 in")))
pad29 = body.newObject("PartDesign::Pad", "Pad028")
pad29.Profile = sketch29
pad29.Length = Q("0.825 in")
body2 = doc.addObject("PartDesign::Body", "Body001")
doc.recompute()

body2.BaseFeature = body
doc.recompute()

mirroring = doc.addObject("Part::Mirroring", "Mirroring")
mirroring.Source = body
mirroring.Base = V(28.575, -20.955, 3.175)
mirroring.Normal = V(0, -1, 0)
body3 = doc.addObject("PartDesign::Body", "Body002")
body3.BaseFeature = mirroring
boolean = body2.newObject("PartDesign::Boolean", "Boolean")
boolean.Type = "Fuse"
boolean.addObjects([body3])
doc.recompute()
mirroring.Visibility = False

doc.recompute()
